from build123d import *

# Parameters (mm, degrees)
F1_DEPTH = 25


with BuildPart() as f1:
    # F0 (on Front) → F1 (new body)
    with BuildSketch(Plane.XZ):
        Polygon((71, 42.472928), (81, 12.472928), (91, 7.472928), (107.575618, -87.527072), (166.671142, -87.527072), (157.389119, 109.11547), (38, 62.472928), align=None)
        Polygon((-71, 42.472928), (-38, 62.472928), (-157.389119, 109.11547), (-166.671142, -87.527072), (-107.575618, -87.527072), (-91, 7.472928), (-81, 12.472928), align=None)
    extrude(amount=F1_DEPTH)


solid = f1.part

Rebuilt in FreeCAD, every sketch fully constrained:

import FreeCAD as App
import Part
import Sketcher
Q = App.Units.Quantity

doc = App.newDocument("Part")
params = doc.addObject("Spreadsheet::Sheet", "Params")
for row, (alias, value) in enumerate([
    ("pad1_length", "25 mm"),
], start=1):
    params.set(f"A{row}", alias)
    params.set(f"B{row}", "=" + value)
    params.setAlias(f"B{row}", alias)

body = doc.addObject("PartDesign::Body", "Body")
body.AllowCompound = True

# Sketch on XZ plane
sketch1 = body.newObject("Sketcher::SketchObject", "Sketch")
sketch1.AttachmentSupport = (doc.getObject("XZ_Plane"), [""])
sketch1.MapMode = "FlatFace"
sketch1.addGeometry([
    Part.LineSegment(App.Vector(71, 42, 0), App.Vector(81, 12, 0)),  # 0
    Part.LineSegment(App.Vector(81, 12, 0), App.Vector(91, 7, 0)),  # 1
    Part.LineSegment(App.Vector(91, 7, 0), App.Vector(108, -88, 0)),  # 2
    Part.LineSegment(App.Vector(108, -88, 0), App.Vector(167, -88, 0)),  # 3
    Part.LineSegment(App.Vector(167, -88, 0), App.Vector(157, 109, 0)),  # 4
    Part.LineSegment(App.Vector(157, 109, 0), App.Vector(38, 62, 0)),  # 5
    Part.LineSegment(App.Vector(38, 62, 0), App.Vector(71, 42, 0)),  # 6
    Part.LineSegment(App.Vector(-71, 42, 0), App.Vector(-38, 62, 0)),  # 7
    Part.LineSegment(App.Vector(-38, 62, 0), App.Vector(-157, 109, 0)),  # 8
    Part.LineSegment(App.Vector(-157, 109, 0), App.Vector(-167, -88, 0)),  # 9
    Part.LineSegment(App.Vector(-167, -88, 0), App.Vector(-108, -88, 0)),  # 10
    Part.LineSegment(App.Vector(-108, -88, 0), App.Vector(-91, 7, 0)),  # 11
    Part.LineSegment(App.Vector(-91, 7, 0), App.Vector(-81, 12, 0)),  # 12
    Part.LineSegment(App.Vector(-81, 12, 0), App.Vector(-71, 42, 0)),  # 13
], False)
sketch1.addConstraint([
    Sketcher.Constraint("Coincident", 0, 2, 1, 1),
    Sketcher.Constraint("Coincident", 1, 2, 2, 1),
    Sketcher.Constraint("Coincident", 2, 2, 3, 1),
    Sketcher.Constraint("Coincident", 3, 2, 4, 1),
    Sketcher.Constraint("Coincident", 4, 2, 5, 1),
    Sketcher.Constraint("Coincident", 5, 2, 6, 1),
    Sketcher.Constraint("Coincident", 6, 2, 0, 1),
    Sketcher.Constraint("Coincident", 7, 2, 8, 1),
    Sketcher.Constraint("Coincident", 8, 2, 9, 1),
    Sketcher.Constraint("Coincident", 9, 2, 10, 1),
    Sketcher.Constraint("Coincident", 10, 2, 11, 1),
    Sketcher.Constraint("Coincident", 11, 2, 12, 1),
    Sketcher.Constraint("Coincident", 12, 2, 13, 1),
    Sketcher.Constraint("Coincident", 13, 2, 7, 1),
    Sketcher.Constraint("Horizontal", 3),
    Sketcher.Constraint("Horizontal", 10),
    Sketcher.Constraint("Symmetric", 5, 2, 7, 2, -2),
    Sketcher.Constraint("Symmetric", 4, 2, 8, 2, -2),
    Sketcher.Constraint("Symmetric", 3, 2, 9, 2, -2),
    Sketcher.Constraint("Symmetric", 1, 2, 11, 2, -2),
    Sketcher.Constraint("Symmetric", 0, 2, 12, 2, -2),
    Sketcher.Constraint("Symmetric", 6, 2, 13, 2, -2),
    Sketcher.Constraint("Equal", 3, 10),
    Sketcher.Constraint("DistanceX", -1, 1, 0, 2, Q("81 mm")),
    Sketcher.Constraint("DistanceX", -1, 1, 1, 2, Q("91 mm")),
    Sketcher.Constraint("DistanceX", -1, 1, 5, 2, Q("38 mm")),
    Sketcher.Constraint("DistanceX", -1, 1, 6, 2, Q("71 mm")),
    Sketcher.Constraint("DistanceY", 1, 2, 0, 2, Q("5 mm")),
    Sketcher.Constraint("DistanceY", 2, 2, 1, 2, Q("95 mm")),
    Sketcher.Constraint("DistanceY", 0, 2, 5, 2, Q("50 mm")),
    Sketcher.Constraint("DistanceY", 0, 2, 6, 2, Q("30 mm")),
    Sketcher.Constraint("DistanceX", 2, 2, 4, 2, Q("49.813501 mm")),
    Sketcher.Constraint("DistanceX", 3, 1, 3, 2, Q("59.095524 mm")),
    Sketcher.Constraint("DistanceX", -1, 1, 2, 2, Q("107.575618 mm")),
    Sketcher.Constraint("DistanceY", -1, 1, 4, 2, Q("109.11547 mm")),
    Sketcher.Constraint("DistanceY", -1, 1, 5, 2, Q("62.472928 mm")),
])
pad1 = body.newObject("PartDesign::Pad", "Pad")
pad1.Profile = sketch1
pad1.setExpression("Length", "Params.pad1_length")

doc.recompute()
